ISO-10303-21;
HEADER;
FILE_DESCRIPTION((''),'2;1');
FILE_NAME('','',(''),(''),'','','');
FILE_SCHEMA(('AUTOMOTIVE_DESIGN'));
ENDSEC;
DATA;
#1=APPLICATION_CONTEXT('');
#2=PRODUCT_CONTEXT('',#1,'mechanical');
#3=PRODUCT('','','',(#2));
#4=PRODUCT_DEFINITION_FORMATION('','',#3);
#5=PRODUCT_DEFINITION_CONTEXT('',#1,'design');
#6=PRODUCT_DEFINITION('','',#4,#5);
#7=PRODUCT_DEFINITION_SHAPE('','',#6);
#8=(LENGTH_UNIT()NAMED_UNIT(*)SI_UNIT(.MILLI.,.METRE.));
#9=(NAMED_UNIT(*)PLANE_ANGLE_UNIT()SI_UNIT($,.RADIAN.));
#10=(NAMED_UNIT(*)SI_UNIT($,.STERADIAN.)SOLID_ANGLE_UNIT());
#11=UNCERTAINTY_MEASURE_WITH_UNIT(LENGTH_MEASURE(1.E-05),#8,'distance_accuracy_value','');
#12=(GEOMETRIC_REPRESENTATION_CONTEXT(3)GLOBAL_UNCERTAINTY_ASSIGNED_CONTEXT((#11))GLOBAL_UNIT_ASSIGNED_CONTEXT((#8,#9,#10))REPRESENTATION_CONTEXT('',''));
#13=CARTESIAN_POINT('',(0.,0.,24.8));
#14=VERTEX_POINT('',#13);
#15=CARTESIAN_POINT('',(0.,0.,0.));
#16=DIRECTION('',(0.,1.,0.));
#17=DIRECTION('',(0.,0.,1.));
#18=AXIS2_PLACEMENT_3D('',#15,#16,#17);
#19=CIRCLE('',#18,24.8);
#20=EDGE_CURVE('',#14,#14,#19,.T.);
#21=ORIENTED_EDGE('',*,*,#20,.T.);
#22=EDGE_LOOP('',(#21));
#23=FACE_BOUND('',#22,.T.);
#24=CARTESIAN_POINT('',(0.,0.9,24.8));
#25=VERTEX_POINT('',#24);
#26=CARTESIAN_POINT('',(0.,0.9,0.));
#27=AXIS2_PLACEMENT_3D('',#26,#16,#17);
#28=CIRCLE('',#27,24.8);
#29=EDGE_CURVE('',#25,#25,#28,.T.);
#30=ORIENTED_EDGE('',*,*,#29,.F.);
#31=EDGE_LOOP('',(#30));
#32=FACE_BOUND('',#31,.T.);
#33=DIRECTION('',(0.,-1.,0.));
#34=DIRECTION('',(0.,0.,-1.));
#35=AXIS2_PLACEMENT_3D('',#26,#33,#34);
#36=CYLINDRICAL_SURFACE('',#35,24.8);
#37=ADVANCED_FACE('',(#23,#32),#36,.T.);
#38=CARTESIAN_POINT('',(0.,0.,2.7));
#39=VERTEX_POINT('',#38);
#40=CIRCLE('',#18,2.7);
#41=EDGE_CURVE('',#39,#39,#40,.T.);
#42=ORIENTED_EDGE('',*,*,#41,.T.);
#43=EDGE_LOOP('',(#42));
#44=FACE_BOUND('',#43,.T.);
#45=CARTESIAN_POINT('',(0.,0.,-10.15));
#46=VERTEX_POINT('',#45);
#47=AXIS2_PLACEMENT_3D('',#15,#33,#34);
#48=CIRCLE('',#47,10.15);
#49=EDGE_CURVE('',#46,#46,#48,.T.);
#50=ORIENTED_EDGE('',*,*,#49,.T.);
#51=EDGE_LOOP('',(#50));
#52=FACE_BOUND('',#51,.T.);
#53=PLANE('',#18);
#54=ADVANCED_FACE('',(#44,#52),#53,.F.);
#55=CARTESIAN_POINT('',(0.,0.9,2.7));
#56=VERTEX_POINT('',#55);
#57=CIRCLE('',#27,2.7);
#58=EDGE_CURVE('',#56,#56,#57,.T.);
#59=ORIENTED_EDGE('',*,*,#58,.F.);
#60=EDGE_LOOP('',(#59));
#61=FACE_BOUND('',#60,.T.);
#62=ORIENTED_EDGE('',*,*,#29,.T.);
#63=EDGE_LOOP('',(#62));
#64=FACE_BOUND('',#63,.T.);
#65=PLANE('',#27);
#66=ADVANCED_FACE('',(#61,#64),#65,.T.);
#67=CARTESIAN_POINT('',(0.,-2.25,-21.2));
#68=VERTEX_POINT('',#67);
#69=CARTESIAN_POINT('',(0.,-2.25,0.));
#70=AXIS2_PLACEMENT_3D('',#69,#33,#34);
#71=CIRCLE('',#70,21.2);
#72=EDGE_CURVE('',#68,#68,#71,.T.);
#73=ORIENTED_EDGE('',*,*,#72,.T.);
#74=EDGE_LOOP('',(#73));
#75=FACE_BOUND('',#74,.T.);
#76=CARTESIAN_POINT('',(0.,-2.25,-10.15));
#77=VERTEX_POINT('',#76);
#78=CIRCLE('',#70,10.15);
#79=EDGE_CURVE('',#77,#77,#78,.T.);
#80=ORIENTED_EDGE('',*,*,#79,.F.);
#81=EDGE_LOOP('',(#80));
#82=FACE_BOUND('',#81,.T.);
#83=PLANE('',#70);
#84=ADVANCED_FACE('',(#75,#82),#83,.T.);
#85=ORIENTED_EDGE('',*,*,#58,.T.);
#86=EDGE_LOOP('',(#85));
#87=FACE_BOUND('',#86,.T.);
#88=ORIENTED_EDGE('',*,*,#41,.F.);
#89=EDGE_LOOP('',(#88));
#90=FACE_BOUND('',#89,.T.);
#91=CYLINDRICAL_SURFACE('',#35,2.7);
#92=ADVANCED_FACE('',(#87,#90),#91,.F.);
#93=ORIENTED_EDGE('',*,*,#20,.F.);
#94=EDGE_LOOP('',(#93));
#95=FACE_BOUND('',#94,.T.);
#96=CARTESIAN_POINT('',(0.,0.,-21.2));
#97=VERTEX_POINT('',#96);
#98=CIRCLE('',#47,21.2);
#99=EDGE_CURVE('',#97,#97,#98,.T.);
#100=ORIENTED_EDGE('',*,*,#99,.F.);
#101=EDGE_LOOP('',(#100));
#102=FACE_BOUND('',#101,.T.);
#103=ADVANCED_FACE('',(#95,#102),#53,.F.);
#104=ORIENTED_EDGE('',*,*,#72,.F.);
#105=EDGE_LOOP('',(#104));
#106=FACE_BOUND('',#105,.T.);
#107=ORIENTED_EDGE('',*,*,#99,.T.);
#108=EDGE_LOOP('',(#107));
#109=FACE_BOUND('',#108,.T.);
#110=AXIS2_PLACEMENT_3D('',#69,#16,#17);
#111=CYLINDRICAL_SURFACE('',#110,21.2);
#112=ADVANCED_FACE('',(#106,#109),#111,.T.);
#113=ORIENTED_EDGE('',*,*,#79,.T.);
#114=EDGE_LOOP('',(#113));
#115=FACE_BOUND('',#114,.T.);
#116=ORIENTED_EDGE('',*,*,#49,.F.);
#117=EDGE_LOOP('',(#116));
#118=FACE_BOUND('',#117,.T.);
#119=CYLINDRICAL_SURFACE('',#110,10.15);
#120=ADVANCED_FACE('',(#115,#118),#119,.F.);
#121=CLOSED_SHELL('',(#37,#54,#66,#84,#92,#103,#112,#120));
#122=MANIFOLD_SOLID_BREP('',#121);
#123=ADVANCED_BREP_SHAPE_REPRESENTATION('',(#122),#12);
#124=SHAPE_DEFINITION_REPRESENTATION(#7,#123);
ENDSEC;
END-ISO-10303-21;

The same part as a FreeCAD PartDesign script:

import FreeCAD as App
import Part
import Sketcher

doc = App.newDocument("Part")
params = doc.addObject("Spreadsheet::Sheet", "Params")
for row, (alias, value) in enumerate([
    ("sketch1_diameter", "49.6 mm"),
    ("sketch1_diameter2", "5.4 mm"),
    ("pad1_length", "0.9 mm"),
    ("sketch2_diameter", "42.4 mm"),
    ("sketch2_diameter2", "20.3 mm"),
    ("pad2_length", "2.25 mm"),
], start=1):
    params.set(f"A{row}", alias)
    params.set(f"B{row}", "=" + value)
    params.setAlias(f"B{row}", alias)

body = doc.addObject("PartDesign::Body", "Body")

# Sketch on XZ plane
sketch1 = body.newObject("Sketcher::SketchObject", "Sketch")
sketch1.AttachmentSupport = (doc.getObject("XZ_Plane"), [""])
sketch1.MapMode = "FlatFace"
sketch1.addGeometry([
    Part.Circle(App.Vector(0, 0, 0), App.Vector(0, 0, 1), 24.8),
    Part.Circle(App.Vector(0, 0, 0), App.Vector(0, 0, 1), 2.7),
], False)
sketch1.addConstraint([
    Sketcher.Constraint("Coincident", 0, 3, -1, 1),
    Sketcher.Constraint("Coincident", 1, 3, -1, 1),
    Sketcher.Constraint("Diameter", 0, 49.6),
    Sketcher.Constraint("Diameter", 1, 5.4),
])
sketch1.setExpression("Constraints[2]", "Params.sketch1_diameter")
sketch1.setExpression("Constraints[3]", "Params.sketch1_diameter2")
pad1 = body.newObject("PartDesign::Pad", "Pad")
pad1.Profile = sketch1
pad1.setExpression("Length", "Params.pad1_length")
pad1.Reversed = True

# Sketch on XZ plane
sketch2 = body.newObject("Sketcher::SketchObject", "Sketch001")
sketch2.AttachmentSupport = (doc.getObject("XZ_Plane"), [""])
sketch2.MapMode = "FlatFace"
sketch2.addGeometry([
    Part.Circle(App.Vector(0, 0, 0), App.Vector(0, 0, 1), 21),
    Part.Circle(App.Vector(0, 0, 0), App.Vector(0, 0, 1), 10),
], False)
sketch2.addConstraint([
    Sketcher.Constraint("Coincident", 0, 3, -1, 1),
    Sketcher.Constraint("Coincident", 1, 3, -1, 1),
    Sketcher.Constraint("Diameter", 0, 42.4),
    Sketcher.Constraint("Diameter", 1, 20.3),
])
sketch2.setExpression("Constraints[2]", "Params.sketch2_diameter")
sketch2.setExpression("Constraints[3]", "Params.sketch2_diameter2")
pad2 = body.newObject("PartDesign::Pad", "Pad001")
pad2.Profile = sketch2
pad2.setExpression("Length", "Params.pad2_length")

doc.recompute()
